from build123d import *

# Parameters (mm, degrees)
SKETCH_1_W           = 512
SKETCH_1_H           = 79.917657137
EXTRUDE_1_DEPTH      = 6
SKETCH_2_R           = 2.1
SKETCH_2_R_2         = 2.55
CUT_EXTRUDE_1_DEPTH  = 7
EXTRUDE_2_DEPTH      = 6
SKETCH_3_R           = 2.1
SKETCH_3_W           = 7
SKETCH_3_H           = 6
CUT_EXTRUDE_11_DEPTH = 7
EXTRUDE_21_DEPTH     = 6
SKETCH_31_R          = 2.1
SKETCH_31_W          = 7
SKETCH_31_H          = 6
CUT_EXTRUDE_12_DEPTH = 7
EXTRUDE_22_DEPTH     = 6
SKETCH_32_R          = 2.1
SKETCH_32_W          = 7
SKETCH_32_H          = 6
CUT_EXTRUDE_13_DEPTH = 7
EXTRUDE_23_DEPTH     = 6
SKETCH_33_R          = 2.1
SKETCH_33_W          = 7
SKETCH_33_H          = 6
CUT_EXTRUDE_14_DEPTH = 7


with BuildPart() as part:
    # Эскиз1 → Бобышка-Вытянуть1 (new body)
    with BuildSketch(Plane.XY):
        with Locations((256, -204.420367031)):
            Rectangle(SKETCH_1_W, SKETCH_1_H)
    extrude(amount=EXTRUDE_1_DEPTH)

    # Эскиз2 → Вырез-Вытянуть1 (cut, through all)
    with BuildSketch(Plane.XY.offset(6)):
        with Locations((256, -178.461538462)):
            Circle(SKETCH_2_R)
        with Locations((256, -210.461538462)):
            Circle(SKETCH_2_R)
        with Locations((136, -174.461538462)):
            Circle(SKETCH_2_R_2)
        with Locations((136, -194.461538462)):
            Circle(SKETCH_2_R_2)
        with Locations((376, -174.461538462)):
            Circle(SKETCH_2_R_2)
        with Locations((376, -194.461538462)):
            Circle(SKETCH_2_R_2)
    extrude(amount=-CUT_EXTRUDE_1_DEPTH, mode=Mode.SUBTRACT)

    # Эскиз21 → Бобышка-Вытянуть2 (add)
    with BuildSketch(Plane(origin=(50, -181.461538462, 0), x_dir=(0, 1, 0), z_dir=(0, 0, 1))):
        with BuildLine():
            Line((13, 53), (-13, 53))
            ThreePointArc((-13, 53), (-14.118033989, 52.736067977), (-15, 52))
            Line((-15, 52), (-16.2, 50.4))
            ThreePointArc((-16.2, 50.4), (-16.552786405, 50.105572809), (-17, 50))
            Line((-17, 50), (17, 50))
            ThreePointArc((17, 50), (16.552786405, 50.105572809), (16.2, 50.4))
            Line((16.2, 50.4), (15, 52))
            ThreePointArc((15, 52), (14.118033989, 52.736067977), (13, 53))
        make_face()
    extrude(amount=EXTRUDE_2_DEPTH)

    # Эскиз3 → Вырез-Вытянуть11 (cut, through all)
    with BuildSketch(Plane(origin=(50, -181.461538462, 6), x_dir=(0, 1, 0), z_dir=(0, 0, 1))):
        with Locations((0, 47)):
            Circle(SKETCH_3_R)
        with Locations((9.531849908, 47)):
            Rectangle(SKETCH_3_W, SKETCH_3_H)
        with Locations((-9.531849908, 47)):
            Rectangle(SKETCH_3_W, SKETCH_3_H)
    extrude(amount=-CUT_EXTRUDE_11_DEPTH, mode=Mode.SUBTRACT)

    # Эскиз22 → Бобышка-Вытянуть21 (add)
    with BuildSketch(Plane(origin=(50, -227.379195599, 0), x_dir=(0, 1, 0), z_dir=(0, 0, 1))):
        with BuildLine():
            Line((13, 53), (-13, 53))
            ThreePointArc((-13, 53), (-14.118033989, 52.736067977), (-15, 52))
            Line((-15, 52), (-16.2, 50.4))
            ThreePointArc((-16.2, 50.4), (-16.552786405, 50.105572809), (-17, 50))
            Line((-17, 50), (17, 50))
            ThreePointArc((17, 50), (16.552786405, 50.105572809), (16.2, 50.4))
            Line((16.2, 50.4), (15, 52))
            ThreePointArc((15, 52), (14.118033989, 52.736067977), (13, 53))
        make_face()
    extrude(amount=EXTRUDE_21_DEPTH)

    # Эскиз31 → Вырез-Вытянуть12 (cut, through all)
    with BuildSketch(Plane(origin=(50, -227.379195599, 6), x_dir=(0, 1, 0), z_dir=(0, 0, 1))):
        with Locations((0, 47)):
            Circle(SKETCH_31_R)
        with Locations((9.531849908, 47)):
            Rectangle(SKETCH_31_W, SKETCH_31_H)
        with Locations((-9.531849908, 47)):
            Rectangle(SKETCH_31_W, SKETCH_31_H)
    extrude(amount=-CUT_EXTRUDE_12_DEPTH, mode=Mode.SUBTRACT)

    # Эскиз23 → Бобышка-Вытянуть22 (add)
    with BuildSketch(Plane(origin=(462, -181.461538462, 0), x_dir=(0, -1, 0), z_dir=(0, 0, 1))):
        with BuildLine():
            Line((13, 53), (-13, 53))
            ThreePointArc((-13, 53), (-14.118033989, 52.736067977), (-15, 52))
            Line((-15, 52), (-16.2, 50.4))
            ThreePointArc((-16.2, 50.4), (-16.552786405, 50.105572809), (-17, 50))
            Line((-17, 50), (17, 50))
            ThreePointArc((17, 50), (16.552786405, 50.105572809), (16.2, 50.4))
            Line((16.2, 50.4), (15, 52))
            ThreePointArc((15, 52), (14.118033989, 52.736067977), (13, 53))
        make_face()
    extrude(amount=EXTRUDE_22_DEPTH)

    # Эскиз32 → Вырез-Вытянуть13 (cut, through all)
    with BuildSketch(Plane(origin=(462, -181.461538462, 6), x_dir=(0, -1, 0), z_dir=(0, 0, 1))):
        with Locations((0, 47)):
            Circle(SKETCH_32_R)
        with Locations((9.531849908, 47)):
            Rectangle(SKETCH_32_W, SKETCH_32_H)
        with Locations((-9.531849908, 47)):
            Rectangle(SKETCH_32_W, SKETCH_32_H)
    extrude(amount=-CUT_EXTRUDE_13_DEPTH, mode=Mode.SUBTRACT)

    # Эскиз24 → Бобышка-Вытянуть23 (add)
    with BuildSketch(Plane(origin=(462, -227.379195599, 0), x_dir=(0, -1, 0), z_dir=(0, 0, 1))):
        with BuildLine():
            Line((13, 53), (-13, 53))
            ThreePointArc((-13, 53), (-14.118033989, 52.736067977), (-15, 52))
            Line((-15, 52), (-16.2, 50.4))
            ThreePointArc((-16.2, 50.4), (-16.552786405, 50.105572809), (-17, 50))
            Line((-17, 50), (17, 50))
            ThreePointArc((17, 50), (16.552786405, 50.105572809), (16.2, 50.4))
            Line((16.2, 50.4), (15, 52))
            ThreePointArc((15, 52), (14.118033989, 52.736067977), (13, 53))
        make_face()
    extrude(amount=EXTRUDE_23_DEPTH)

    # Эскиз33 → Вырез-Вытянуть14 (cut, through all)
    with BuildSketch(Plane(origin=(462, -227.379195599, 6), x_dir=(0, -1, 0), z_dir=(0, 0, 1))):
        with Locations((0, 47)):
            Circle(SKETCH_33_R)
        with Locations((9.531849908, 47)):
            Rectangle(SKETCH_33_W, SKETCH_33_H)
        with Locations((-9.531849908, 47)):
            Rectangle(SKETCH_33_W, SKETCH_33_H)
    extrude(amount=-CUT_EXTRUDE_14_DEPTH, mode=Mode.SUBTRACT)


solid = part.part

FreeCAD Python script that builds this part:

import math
import FreeCAD as App
import Part
import Sketcher


def add_polygon(sketch, points):
    """Adds a closed chain of lines whose ends are joined by coincident constraints."""
    first, n = sketch.GeometryCount, len(points)
    for a, b in zip(points, points[1:] + points[:1]):
        sketch.addGeometry(Part.LineSegment(App.Vector(*a, 0), App.Vector(*b, 0)), False)
    for i in range(n):
        sketch.addConstraint(Sketcher.Constraint("Coincident", first + i, 2, first + (i + 1) % n, 1))

doc = App.newDocument("Part")
body = doc.addObject("PartDesign::Body", "Body")

# Sketch on XY plane
sketch1 = doc.addObject("Sketcher::SketchObject", "Sketch")
body.addObject(sketch1)
sketch1.AttachmentSupport = (doc.XY_Plane, [""])
sketch1.MapMode = "FlatFace"
add_polygon(sketch1, [(0, -164), (0, -244), (512, -244), (512, -164)])  # lines 0-3
sketch1.addConstraint([
    Sketcher.Constraint("Vertical", 0),
    Sketcher.Constraint("Horizontal", 1),
    Sketcher.Constraint("Vertical", 2),
    Sketcher.Constraint("Horizontal", 3),
    Sketcher.Constraint("PointOnObject", 0, 2, -2),
    Sketcher.Constraint("DistanceX", 1, 1, 1, 2, 512.0),
    Sketcher.Constraint("DistanceY", 0, 2, 0, 1, 79.917657),
    Sketcher.Constraint("DistanceY", 2, 2, -1, 1, 164.461538),
])
pad1 = doc.addObject("PartDesign::Pad", "Pad")
body.addObject(pad1)
pad1.Profile = sketch1
pad1.Length = 6

# Sketch on XY plane
sketch2 = doc.addObject("Sketcher::SketchObject", "Sketch001")
body.addObject(sketch2)
sketch2.AttachmentSupport = (doc.XY_Plane, [""])
sketch2.MapMode = "FlatFace"
sketch2.AttachmentOffset = App.Placement(App.Vector(0, 0, 6), App.Rotation())
sketch2.addGeometry([
    Part.Circle(App.Vector(256, -178.5, 0), App.Vector(0, 0, 1), 2.1),  # 0
    Part.Circle(App.Vector(256, -210.5, 0), App.Vector(0, 0, 1), 2.1),  # 1
    Part.Circle(App.Vector(136, -174.5, 0), App.Vector(0, 0, 1), 2.5),  # 2
    Part.Circle(App.Vector(136, -194.5, 0), App.Vector(0, 0, 1), 2.5),  # 3
    Part.Circle(App.Vector(376, -174.5, 0), App.Vector(0, 0, 1), 2.5),  # 4
    Part.Circle(App.Vector(376, -194.5, 0), App.Vector(0, 0, 1), 2.5),  # 5
], False)
sketch2.addConstraint([
    Sketcher.Constraint("Equal", 0, 1),
    Sketcher.Constraint("Equal", 2, 3),
    Sketcher.Constraint("Equal", 3, 4),
    Sketcher.Constraint("Equal", 4, 5),
    Sketcher.Constraint("Horizontal", 2, 3, 4, 3),
    Sketcher.Constraint("Horizontal", 3, 3, 5, 3),
    Sketcher.Constraint("Vertical", 0, 3, 1, 3),
    Sketcher.Constraint("Vertical", 2, 3, 3, 3),
    Sketcher.Constraint("Vertical", 4, 3, 5, 3),
    Sketcher.Constraint("Diameter", 0, 4.2),
    Sketcher.Constraint("Diameter", 2, 5.1),
    Sketcher.Constraint("DistanceX", -1, 1, 0, 3, 256.0),
    Sketcher.Constraint("DistanceX", -1, 1, 2, 3, 136.0),
    Sketcher.Constraint("DistanceX", -1, 1, 4, 3, 376.0),
    Sketcher.Constraint("DistanceY", 1, 3, 0, 3, 32.0),
    Sketcher.Constraint("DistanceY", 0, 3, 2, 3, 4.0),
    Sketcher.Constraint("DistanceY", 3, 3, 2, 3, 20.0),
    Sketcher.Constraint("DistanceY", 0, 3, -1, 1, 178.461538),
])
pocket1 = doc.addObject("PartDesign::Pocket", "Pocket")
body.addObject(pocket1)
pocket1.Profile = sketch2
pocket1.Type = "ThroughAll"

# Sketch on XY plane
sketch3 = doc.addObject("Sketcher::SketchObject", "Sketch002")
body.addObject(sketch3)
sketch3.AttachmentSupport = (doc.XY_Plane, [""])
sketch3.MapMode = "FlatFace"
sketch3.addGeometry([
    Part.LineSegment(App.Vector(-3, -168.5, 0), App.Vector(-3, -194.5, 0)),  # 0
    Part.ArcOfCircle(Part.Circle(App.Vector(-0.5, -194.5, 0), App.Vector(0, 0, 1), 2.5), math.radians(-180), math.radians(-127)),  # 1
    Part.LineSegment(App.Vector(-2, -196.5, 0), App.Vector(-0.4, -197.7, 0)),  # 2
    Part.ArcOfCircle(Part.Circle(App.Vector(-1, -198.5, 0), App.Vector(0, 0, 1), 1), math.radians(0), math.radians(53)),  # 3
    Part.LineSegment(App.Vector(0, -198.5, 0), App.Vector(0, -164.5, 0)),  # 4
    Part.ArcOfCircle(Part.Circle(App.Vector(-1, -164.5, 0), App.Vector(0, 0, 1), 1), math.radians(-53), math.radians(0)),  # 5
    Part.LineSegment(App.Vector(-0.4, -165.3, 0), App.Vector(-2, -166.5, 0)),  # 6
    Part.ArcOfCircle(Part.Circle(App.Vector(-0.5, -168.5, 0), App.Vector(0, 0, 1), 2.5), math.radians(127), math.radians(180)),  # 7
], False)
sketch3.addConstraint([
    Sketcher.Constraint("Tangent", 0, 2, 1, 1),
    Sketcher.Constraint("Tangent", 1, 2, 2, 1),
    Sketcher.Constraint("Tangent", 2, 2, 3, 2),
    Sketcher.Constraint("Tangent", 3, 1, 4, 1),
    Sketcher.Constraint("Tangent", 4, 2, 5, 2),
    Sketcher.Constraint("Tangent", 5, 1, 6, 1),
    Sketcher.Constraint("Tangent", 6, 2, 7, 1),
    Sketcher.Constraint("Tangent", 7, 2, 0, 1),
    Sketcher.Constraint("Vertical", 0),
    Sketcher.Constraint("Vertical", 4),
    Sketcher.Constraint("Equal", 3, 5),
    Sketcher.Constraint("Equal", 1, 7),
    Sketcher.Constraint("PointOnObject", 3, 1, -2),
    Sketcher.Constraint("Vertical", 2, 2, 5, 1),
    Sketcher.Constraint("Radius", 3, 1.0),
    Sketcher.Constraint("Radius", 1, 2.5),
    Sketcher.Constraint("DistanceY", 0, 2, 0, 1, 26.0),
    Sketcher.Constraint("DistanceY", 4, 1, 4, 2, 34.0),
    Sketcher.Constraint("Distance", 2, 2.0),
    Sketcher.Constraint("DistanceY", 1, 3, -1, 1, 194.461538),
])
pad2 = doc.addObject("PartDesign::Pad", "Pad001")
body.addObject(pad2)
pad2.Profile = sketch3
pad2.Length = 6

# Sketch on XY plane
sketch4 = doc.addObject("Sketcher::SketchObject", "Sketch003")
body.addObject(sketch4)
sketch4.AttachmentSupport = (doc.XY_Plane, [""])
sketch4.MapMode = "FlatFace"
sketch4.AttachmentOffset = App.Placement(App.Vector(0, 0, 6), App.Rotation())
sketch4.addGeometry(Part.Circle(App.Vector(3, -181.5, 0), App.Vector(0, 0, 1), 2.1), False)  # 0
add_polygon(sketch4, [(0, -175.4), (6, -175.4), (6, -168.4), (0, -168.4)])  # lines 1-4
add_polygon(sketch4, [(0, -194.5), (6, -194.5), (6, -187.5), (0, -187.5)])  # lines 5-8
sketch4.addConstraint([
    Sketcher.Constraint("Horizontal", 1),
    Sketcher.Constraint("Vertical", 2),
    Sketcher.Constraint("Horizontal", 3),
    Sketcher.Constraint("Vertical", 4),
    Sketcher.Constraint("Horizontal", 5),
    Sketcher.Constraint("Vertical", 6),
    Sketcher.Constraint("Horizontal", 7),
    Sketcher.Constraint("Vertical", 8),
    Sketcher.Constraint("PointOnObject", 3, 2, -2),
    Sketcher.Constraint("PointOnObject", 7, 2, -2),
    Sketcher.Constraint("Vertical", 2, 2, 5, 2),
    Sketcher.Constraint("Equal", 4, 6),
    Sketcher.Constraint("Diameter", 0, 4.2),
    Sketcher.Constraint("DistanceX", 1, 1, 1, 2, 6.0),
    Sketcher.Constraint("DistanceY", 2, 1, 2, 2, 7.0),
    Sketcher.Constraint("DistanceX", -1, 1, 0, 3, 3.0),
    Sketcher.Constraint("DistanceY", 5, 2, 1, 2, 19.0637),
    Sketcher.Constraint("DistanceY", 0, 3, -1, 1, 181.461538),
    Sketcher.Constraint("DistanceY", 1, 2, -1, 1, 175.429689),
])
pocket2 = doc.addObject("PartDesign::Pocket", "Pocket001")
body.addObject(pocket2)
pocket2.Profile = sketch4
pocket2.Type = "ThroughAll"

# Sketch on XY plane
sketch5 = doc.addObject("Sketcher::SketchObject", "Sketch004")
body.addObject(sketch5)
sketch5.AttachmentSupport = (doc.XY_Plane, [""])
sketch5.MapMode = "FlatFace"
sketch5.addGeometry([
    Part.LineSegment(App.Vector(-3, -214.4, 0), App.Vector(-3, -240.4, 0)),  # 0
    Part.ArcOfCircle(Part.Circle(App.Vector(-0.5, -240.4, 0), App.Vector(0, 0, 1), 2.5), math.radians(-180), math.radians(-127)),  # 1
    Part.LineSegment(App.Vector(-2, -242.4, 0), App.Vector(-0.4, -243.6, 0)),  # 2
    Part.ArcOfCircle(Part.Circle(App.Vector(-1, -244.4, 0), App.Vector(0, 0, 1), 1), math.radians(0), math.radians(53)),  # 3
    Part.LineSegment(App.Vector(0, -244.4, 0), App.Vector(0, -210.4, 0)),  # 4
    Part.ArcOfCircle(Part.Circle(App.Vector(-1, -210.4, 0), App.Vector(0, 0, 1), 1), math.radians(-53), math.radians(0)),  # 5
    Part.LineSegment(App.Vector(-0.4, -211.2, 0), App.Vector(-2, -212.4, 0)),  # 6
    Part.ArcOfCircle(Part.Circle(App.Vector(-0.5, -214.4, 0), App.Vector(0, 0, 1), 2.5), math.radians(127), math.radians(180)),  # 7
], False)
sketch5.addConstraint([
    Sketcher.Constraint("Tangent", 0, 2, 1, 1),
    Sketcher.Constraint("Tangent", 1, 2, 2, 1),
    Sketcher.Constraint("Tangent", 2, 2, 3, 2),
    Sketcher.Constraint("Tangent", 3, 1, 4, 1),
    Sketcher.Constraint("Tangent", 4, 2, 5, 2),
    Sketcher.Constraint("Tangent", 5, 1, 6, 1),
    Sketcher.Constraint("Tangent", 6, 2, 7, 1),
    Sketcher.Constraint("Tangent", 7, 2, 0, 1),
    Sketcher.Constraint("Vertical", 0),
    Sketcher.Constraint("Vertical", 4),
    Sketcher.Constraint("Equal", 3, 5),
    Sketcher.Constraint("Equal", 1, 7),
    Sketcher.Constraint("PointOnObject", 3, 1, -2),
    Sketcher.Constraint("Vertical", 2, 2, 5, 1),
    Sketcher.Constraint("Radius", 3, 1.0),
    Sketcher.Constraint("Radius", 1, 2.5),
    Sketcher.Constraint("DistanceY", 0, 2, 0, 1, 26.0),
    Sketcher.Constraint("DistanceY", 4, 1, 4, 2, 34.0),
    Sketcher.Constraint("Distance", 2, 2.0),
    Sketcher.Constraint("DistanceY", 1, 3, -1, 1, 240.379196),
])
pad3 = doc.addObject("PartDesign::Pad", "Pad002")
body.addObject(pad3)
pad3.Profile = sketch5
pad3.Length = 6

# Sketch on XY plane
sketch6 = doc.addObject("Sketcher::SketchObject", "Sketch005")
body.addObject(sketch6)
sketch6.AttachmentSupport = (doc.XY_Plane, [""])
sketch6.MapMode = "FlatFace"
sketch6.AttachmentOffset = App.Placement(App.Vector(0, 0, 6), App.Rotation())
sketch6.addGeometry(Part.Circle(App.Vector(3, -227.4, 0), App.Vector(0, 0, 1), 2.1), False)  # 0
add_polygon(sketch6, [(0, -221.3), (6, -221.3), (6, -214.3), (0, -214.3)])  # lines 1-4
add_polygon(sketch6, [(0, -240.4), (6, -240.4), (6, -233.4), (0, -233.4)])  # lines 5-8
sketch6.addConstraint([
    Sketcher.Constraint("Horizontal", 1),
    Sketcher.Constraint("Vertical", 2),
    Sketcher.Constraint("Horizontal", 3),
    Sketcher.Constraint("Vertical", 4),
    Sketcher.Constraint("Horizontal", 5),
    Sketcher.Constraint("Vertical", 6),
    Sketcher.Constraint("Horizontal", 7),
    Sketcher.Constraint("Vertical", 8),
    Sketcher.Constraint("PointOnObject", 3, 2, -2),
    Sketcher.Constraint("PointOnObject", 7, 2, -2),
    Sketcher.Constraint("Vertical", 2, 2, 5, 2),
    Sketcher.Constraint("Equal", 4, 6),
    Sketcher.Constraint("Diameter", 0, 4.2),
    Sketcher.Constraint("DistanceX", 1, 1, 1, 2, 6.0),
    Sketcher.Constraint("DistanceY", 2, 1, 2, 2, 7.0),
    Sketcher.Constraint("DistanceX", -1, 1, 0, 3, 3.0),
    Sketcher.Constraint("DistanceY", 5, 2, 1, 2, 19.0637),
    Sketcher.Constraint("DistanceY", 0, 3, 1, 2, 6.03185),
    Sketcher.Constraint("DistanceY", 0, 3, -1, 1, 227.379196),
])
pocket3 = doc.addObject("PartDesign::Pocket", "Pocket002")
body.addObject(pocket3)
pocket3.Profile = sketch6
pocket3.Type = "ThroughAll"

# Sketch on XY plane
sketch7 = doc.addObject("Sketcher::SketchObject", "Sketch006")
body.addObject(sketch7)
sketch7.AttachmentSupport = (doc.XY_Plane, [""])
sketch7.MapMode = "FlatFace"
sketch7.addGeometry([
    Part.LineSegment(App.Vector(515, -194.5, 0), App.Vector(515, -168.5, 0)),  # 0
    Part.ArcOfCircle(Part.Circle(App.Vector(512.5, -168.5, 0), App.Vector(0, 0, 1), 2.5), math.radians(0), math.radians(53)),  # 1
    Part.LineSegment(App.Vector(514, -166.5, 0), App.Vector(512.4, -165.3, 0)),  # 2
    Part.ArcOfCircle(Part.Circle(App.Vector(513, -164.5, 0), App.Vector(0, 0, 1), 1), math.radians(-180), math.radians(-127)),  # 3
    Part.LineSegment(App.Vector(512, -164.5, 0), App.Vector(512, -198.5, 0)),  # 4
    Part.ArcOfCircle(Part.Circle(App.Vector(513, -198.5, 0), App.Vector(0, 0, 1), 1), math.radians(127), math.radians(180)),  # 5
    Part.LineSegment(App.Vector(512.4, -197.7, 0), App.Vector(514, -196.5, 0)),  # 6
    Part.ArcOfCircle(Part.Circle(App.Vector(512.5, -194.5, 0), App.Vector(0, 0, 1), 2.5), math.radians(-53), math.radians(0)),  # 7
], False)
sketch7.addConstraint([
    Sketcher.Constraint("Tangent", 0, 2, 1, 1),
    Sketcher.Constraint("Tangent", 1, 2, 2, 1),
    Sketcher.Constraint("Tangent", 2, 2, 3, 2),
    Sketcher.Constraint("Tangent", 3, 1, 4, 1),
    Sketcher.Constraint("Tangent", 4, 2, 5, 2),
    Sketcher.Constraint("Tangent", 5, 1, 6, 1),
    Sketcher.Constraint("Tangent", 6, 2, 7, 1),
    Sketcher.Constraint("Tangent", 7, 2, 0, 1),
    Sketcher.Constraint("Vertical", 0),
    Sketcher.Constraint("Vertical", 4),
    Sketcher.Constraint("Equal", 3, 5),
    Sketcher.Constraint("Equal", 1, 7),
    Sketcher.Constraint("Vertical", 2, 2, 5, 1),
    Sketcher.Constraint("Radius", 3, 1.0),
    Sketcher.Constraint("Radius", 1, 2.5),
    Sketcher.Constraint("DistanceY", 0, 1, 0, 2, 26.0),
    Sketcher.Constraint("DistanceY", 4, 2, 4, 1, 34.0),
    Sketcher.Constraint("Distance", 2, 2.0),
    Sketcher.Constraint("DistanceX", -1, 1, 3, 3, 513.0),
    Sketcher.Constraint("DistanceY", 1, 3, -1, 1, 168.461538),
])
pad4 = doc.addObject("PartDesign::Pad", "Pad003")
body.addObject(pad4)
pad4.Profile = sketch7
pad4.Length = 6

# Sketch on XY plane
sketch8 = doc.addObject("Sketcher::SketchObject", "Sketch007")
body.addObject(sketch8)
sketch8.AttachmentSupport = (doc.XY_Plane, [""])
sketch8.MapMode = "FlatFace"
sketch8.AttachmentOffset = App.Placement(App.Vector(0, 0, 6), App.Rotation())
sketch8.addGeometry(Part.Circle(App.Vector(509, -181.5, 0), App.Vector(0, 0, 1), 2.1), False)  # 0
add_polygon(sketch8, [(512, -187.5), (506, -187.5), (506, -194.5), (512, -194.5)])  # lines 1-4
add_polygon(sketch8, [(512, -168.4), (506, -168.4), (506, -175.4), (512, -175.4)])  # lines 5-8
sketch8.addConstraint([
    Sketcher.Constraint("Horizontal", 1),
    Sketcher.Constraint("Vertical", 2),
    Sketcher.Constraint("Horizontal", 3),
    Sketcher.Constraint("Vertical", 4),
    Sketcher.Constraint("Horizontal", 5),
    Sketcher.Constraint("Vertical", 6),
    Sketcher.Constraint("Horizontal", 7),
    Sketcher.Constraint("Vertical", 8),
    Sketcher.Constraint("Vertical", 2, 2, 5, 2),
    Sketcher.Constraint("Vertical", 4, 2, 7, 2),
    Sketcher.Constraint("Equal", 4, 6),
    Sketcher.Constraint("Diameter", 0, 4.2),
    Sketcher.Constraint("DistanceX", 1, 2, 1, 1, 6.0),
    Sketcher.Constraint("DistanceY", 2, 2, 2, 1, 7.0),
    Sketcher.Constraint("DistanceX", -1, 1, 0, 3, 509.0),
    Sketcher.Constraint("DistanceX", -1, 1, 1, 2, 506.0),
    Sketcher.Constraint("DistanceY", 1, 2, 5, 2, 19.0637),
    Sketcher.Constraint("DistanceY", 0, 3, -1, 1, 181.461538),
    Sketcher.Constraint("DistanceY", 1, 2, -1, 1, 187.493388),
])
pocket4 = doc.addObject("PartDesign::Pocket", "Pocket003")
body.addObject(pocket4)
pocket4.Profile = sketch8
pocket4.Type = "ThroughAll"

# Sketch on XY plane
sketch9 = doc.addObject("Sketcher::SketchObject", "Sketch008")
body.addObject(sketch9)
sketch9.AttachmentSupport = (doc.XY_Plane, [""])
sketch9.MapMode = "FlatFace"
sketch9.addGeometry([
    Part.LineSegment(App.Vector(515, -240.4, 0), App.Vector(515, -214.4, 0)),  # 0
    Part.ArcOfCircle(Part.Circle(App.Vector(512.5, -214.4, 0), App.Vector(0, 0, 1), 2.5), math.radians(0), math.radians(53)),  # 1
    Part.LineSegment(App.Vector(514, -212.4, 0), App.Vector(512.4, -211.2, 0)),  # 2
    Part.ArcOfCircle(Part.Circle(App.Vector(513, -210.4, 0), App.Vector(0, 0, 1), 1), math.radians(-180), math.radians(-127)),  # 3
    Part.LineSegment(App.Vector(512, -210.4, 0), App.Vector(512, -244.4, 0)),  # 4
    Part.ArcOfCircle(Part.Circle(App.Vector(513, -244.4, 0), App.Vector(0, 0, 1), 1), math.radians(127), math.radians(180)),  # 5
    Part.LineSegment(App.Vector(512.4, -243.6, 0), App.Vector(514, -242.4, 0)),  # 6
    Part.ArcOfCircle(Part.Circle(App.Vector(512.5, -240.4, 0), App.Vector(0, 0, 1), 2.5), math.radians(-53), math.radians(0)),  # 7
], False)
sketch9.addConstraint([
    Sketcher.Constraint("Tangent", 0, 2, 1, 1),
    Sketcher.Constraint("Tangent", 1, 2, 2, 1),
    Sketcher.Constraint("Tangent", 2, 2, 3, 2),
    Sketcher.Constraint("Tangent", 3, 1, 4, 1),
    Sketcher.Constraint("Tangent", 4, 2, 5, 2),
    Sketcher.Constraint("Tangent", 5, 1, 6, 1),
    Sketcher.Constraint("Tangent", 6, 2, 7, 1),
    Sketcher.Constraint("Tangent", 7, 2, 0, 1),
    Sketcher.Constraint("Vertical", 0),
    Sketcher.Constraint("Vertical", 4),
    Sketcher.Constraint("Equal", 3, 5),
    Sketcher.Constraint("Equal", 1, 7),
    Sketcher.Constraint("Vertical", 2, 2, 5, 1),
    Sketcher.Constraint("Radius", 3, 1.0),
    Sketcher.Constraint("Radius", 1, 2.5),
    Sketcher.Constraint("DistanceY", 0, 1, 0, 2, 26.0),
    Sketcher.Constraint("DistanceY", 4, 2, 4, 1, 34.0),
    Sketcher.Constraint("Distance", 2, 2.0),
    Sketcher.Constraint("DistanceX", -1, 1, 3, 3, 513.0),
    Sketcher.Constraint("DistanceY", 1, 3, -1, 1, 214.379196),
])
pad5 = doc.addObject("PartDesign::Pad", "Pad004")
body.addObject(pad5)
pad5.Profile = sketch9
pad5.Length = 6

# Sketch on XY plane
sketch10 = doc.addObject("Sketcher::SketchObject", "Sketch009")
body.addObject(sketch10)
sketch10.AttachmentSupport = (doc.XY_Plane, [""])
sketch10.MapMode = "FlatFace"
sketch10.AttachmentOffset = App.Placement(App.Vector(0, 0, 6), App.Rotation())
sketch10.addGeometry(Part.Circle(App.Vector(509, -227.4, 0), App.Vector(0, 0, 1), 2.1), False)  # 0
add_polygon(sketch10, [(512, -233.4), (506, -233.4), (506, -240.4), (512, -240.4)])  # lines 1-4
add_polygon(sketch10, [(512, -214.3), (506, -214.3), (506, -221.3), (512, -221.3)])  # lines 5-8
sketch10.addConstraint([
    Sketcher.Constraint("Horizontal", 1),
    Sketcher.Constraint("Vertical", 2),
    Sketcher.Constraint("Horizontal", 3),
    Sketcher.Constraint("Vertical", 4),
    Sketcher.Constraint("Horizontal", 5),
    Sketcher.Constraint("Vertical", 6),
    Sketcher.Constraint("Horizontal", 7),
    Sketcher.Constraint("Vertical", 8),
    Sketcher.Constraint("Vertical", 2, 2, 5, 2),
    Sketcher.Constraint("Vertical", 4, 2, 7, 2),
    Sketcher.Constraint("Equal", 4, 6),
    Sketcher.Constraint("Diameter", 0, 4.2),
    Sketcher.Constraint("DistanceX", 1, 2, 1, 1, 6.0),
    Sketcher.Constraint("DistanceY", 2, 2, 2, 1, 7.0),
    Sketcher.Constraint("DistanceX", -1, 1, 0, 3, 509.0),
    Sketcher.Constraint("DistanceX", -1, 1, 1, 2, 506.0),
    Sketcher.Constraint("DistanceY", 1, 2, 5, 2, 19.0637),
    Sketcher.Constraint("DistanceY", 1, 2, 0, 3, 6.03185),
    Sketcher.Constraint("DistanceY", 0, 3, -1, 1, 227.379196),
])
pocket5 = doc.addObject("PartDesign::Pocket", "Pocket004")
body.addObject(pocket5)
pocket5.Profile = sketch10
pocket5.Type = "ThroughAll"

doc.recompute()
